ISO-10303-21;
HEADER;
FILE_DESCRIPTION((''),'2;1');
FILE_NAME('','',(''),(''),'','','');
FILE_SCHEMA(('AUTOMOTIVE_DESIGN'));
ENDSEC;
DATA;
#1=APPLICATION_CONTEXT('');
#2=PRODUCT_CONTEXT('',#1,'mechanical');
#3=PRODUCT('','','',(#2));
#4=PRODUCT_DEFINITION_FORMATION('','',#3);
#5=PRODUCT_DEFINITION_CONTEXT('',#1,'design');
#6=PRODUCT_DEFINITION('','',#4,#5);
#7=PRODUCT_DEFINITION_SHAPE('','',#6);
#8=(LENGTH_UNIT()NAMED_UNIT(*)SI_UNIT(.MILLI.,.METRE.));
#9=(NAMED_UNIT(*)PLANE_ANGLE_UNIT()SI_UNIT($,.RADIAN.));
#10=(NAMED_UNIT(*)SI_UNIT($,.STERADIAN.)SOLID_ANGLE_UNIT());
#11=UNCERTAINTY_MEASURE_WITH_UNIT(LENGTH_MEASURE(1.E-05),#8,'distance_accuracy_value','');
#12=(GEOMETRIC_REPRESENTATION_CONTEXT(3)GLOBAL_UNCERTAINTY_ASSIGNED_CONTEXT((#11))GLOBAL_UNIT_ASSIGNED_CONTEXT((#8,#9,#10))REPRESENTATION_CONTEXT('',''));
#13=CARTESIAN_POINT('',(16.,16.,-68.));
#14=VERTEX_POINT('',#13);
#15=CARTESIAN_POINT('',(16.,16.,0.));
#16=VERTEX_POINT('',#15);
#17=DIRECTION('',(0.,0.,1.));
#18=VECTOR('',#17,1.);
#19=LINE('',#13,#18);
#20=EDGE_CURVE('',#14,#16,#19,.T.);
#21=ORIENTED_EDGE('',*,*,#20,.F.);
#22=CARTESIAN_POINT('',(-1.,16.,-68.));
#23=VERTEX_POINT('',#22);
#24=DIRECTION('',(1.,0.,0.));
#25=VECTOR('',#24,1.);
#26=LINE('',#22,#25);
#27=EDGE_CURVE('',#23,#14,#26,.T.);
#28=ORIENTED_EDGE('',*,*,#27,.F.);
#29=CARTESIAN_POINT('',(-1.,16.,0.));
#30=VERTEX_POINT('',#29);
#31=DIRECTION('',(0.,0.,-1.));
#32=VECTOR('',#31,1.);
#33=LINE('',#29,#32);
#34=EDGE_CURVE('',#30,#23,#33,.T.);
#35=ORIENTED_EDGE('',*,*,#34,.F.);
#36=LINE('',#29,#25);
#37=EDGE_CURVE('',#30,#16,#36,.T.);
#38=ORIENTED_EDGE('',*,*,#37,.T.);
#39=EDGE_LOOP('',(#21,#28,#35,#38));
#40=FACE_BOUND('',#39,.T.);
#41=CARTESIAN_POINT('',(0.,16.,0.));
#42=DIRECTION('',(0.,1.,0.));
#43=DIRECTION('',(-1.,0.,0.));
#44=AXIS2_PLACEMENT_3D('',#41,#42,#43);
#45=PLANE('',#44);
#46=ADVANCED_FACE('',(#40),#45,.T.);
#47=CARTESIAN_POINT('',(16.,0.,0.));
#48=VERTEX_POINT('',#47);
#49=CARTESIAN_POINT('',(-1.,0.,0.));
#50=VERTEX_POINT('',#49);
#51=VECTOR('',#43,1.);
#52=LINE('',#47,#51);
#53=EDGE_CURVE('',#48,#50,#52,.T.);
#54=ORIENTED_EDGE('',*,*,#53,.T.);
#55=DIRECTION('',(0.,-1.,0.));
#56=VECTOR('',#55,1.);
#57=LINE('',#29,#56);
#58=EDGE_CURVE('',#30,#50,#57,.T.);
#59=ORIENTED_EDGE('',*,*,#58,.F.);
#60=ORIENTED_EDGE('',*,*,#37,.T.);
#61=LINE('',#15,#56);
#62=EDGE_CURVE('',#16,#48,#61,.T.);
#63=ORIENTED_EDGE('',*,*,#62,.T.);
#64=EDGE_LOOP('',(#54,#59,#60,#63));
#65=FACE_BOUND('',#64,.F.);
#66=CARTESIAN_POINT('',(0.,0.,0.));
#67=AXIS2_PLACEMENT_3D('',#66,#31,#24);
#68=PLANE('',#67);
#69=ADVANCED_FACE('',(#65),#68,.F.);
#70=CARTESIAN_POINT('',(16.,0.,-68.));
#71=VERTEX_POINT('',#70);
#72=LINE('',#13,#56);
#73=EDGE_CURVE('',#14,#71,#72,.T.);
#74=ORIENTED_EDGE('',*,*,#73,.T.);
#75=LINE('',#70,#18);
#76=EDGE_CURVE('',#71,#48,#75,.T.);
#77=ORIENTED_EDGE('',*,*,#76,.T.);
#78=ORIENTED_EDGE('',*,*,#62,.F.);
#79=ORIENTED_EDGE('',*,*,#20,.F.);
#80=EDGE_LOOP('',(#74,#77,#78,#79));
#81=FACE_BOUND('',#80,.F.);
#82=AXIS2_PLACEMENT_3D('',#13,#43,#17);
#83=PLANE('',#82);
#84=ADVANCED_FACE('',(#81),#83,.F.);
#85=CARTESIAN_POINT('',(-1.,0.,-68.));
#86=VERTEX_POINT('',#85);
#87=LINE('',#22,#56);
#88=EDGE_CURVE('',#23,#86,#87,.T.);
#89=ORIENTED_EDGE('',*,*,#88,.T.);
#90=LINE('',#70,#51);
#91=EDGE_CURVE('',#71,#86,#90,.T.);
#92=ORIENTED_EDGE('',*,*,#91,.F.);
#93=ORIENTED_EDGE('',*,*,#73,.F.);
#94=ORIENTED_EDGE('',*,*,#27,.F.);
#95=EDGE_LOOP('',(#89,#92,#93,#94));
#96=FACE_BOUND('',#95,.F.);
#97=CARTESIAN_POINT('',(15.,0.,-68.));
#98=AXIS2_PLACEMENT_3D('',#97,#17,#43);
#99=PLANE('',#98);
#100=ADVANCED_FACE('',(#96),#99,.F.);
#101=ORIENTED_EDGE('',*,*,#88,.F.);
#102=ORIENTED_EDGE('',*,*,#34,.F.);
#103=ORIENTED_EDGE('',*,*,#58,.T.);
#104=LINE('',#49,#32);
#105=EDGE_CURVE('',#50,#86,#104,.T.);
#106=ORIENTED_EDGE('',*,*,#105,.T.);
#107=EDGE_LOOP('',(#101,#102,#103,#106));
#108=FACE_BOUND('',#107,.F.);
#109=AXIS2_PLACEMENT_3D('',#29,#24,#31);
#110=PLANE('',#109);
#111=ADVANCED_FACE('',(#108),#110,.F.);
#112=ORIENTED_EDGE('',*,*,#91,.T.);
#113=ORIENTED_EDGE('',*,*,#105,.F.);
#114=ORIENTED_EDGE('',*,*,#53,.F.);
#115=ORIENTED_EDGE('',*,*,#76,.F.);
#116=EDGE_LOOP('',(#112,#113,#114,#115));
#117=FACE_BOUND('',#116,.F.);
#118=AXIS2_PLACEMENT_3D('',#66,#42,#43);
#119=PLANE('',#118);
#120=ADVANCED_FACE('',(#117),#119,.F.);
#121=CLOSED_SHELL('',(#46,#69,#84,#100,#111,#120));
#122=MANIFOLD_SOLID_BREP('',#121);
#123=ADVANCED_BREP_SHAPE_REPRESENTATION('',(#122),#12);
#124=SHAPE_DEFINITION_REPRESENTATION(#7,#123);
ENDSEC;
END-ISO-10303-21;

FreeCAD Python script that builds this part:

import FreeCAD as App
import Part
import Sketcher

V = App.Vector
Q = App.Units.Quantity


def add_polygon(sketch, points):
    """Adds a closed chain of lines whose ends are joined by coincident constraints."""
    first, n = sketch.GeometryCount, len(points)
    for a, b in zip(points, points[1:] + points[:1]):
        sketch.addGeometry(Part.LineSegment(App.Vector(*a, 0), App.Vector(*b, 0)), False)
    for i in range(n):
        sketch.addConstraint(Sketcher.Constraint("Coincident", first + i, 2, first + (i + 1) % n, 1))

doc = App.newDocument("Part")
params = doc.addObject("Spreadsheet::Sheet", "Params")
for row, (alias, value) in enumerate([
    ("sketch1_width", "15 mm"),
    ("sketch1_height", "68 mm"),
    ("pad1_length", "16 mm"),
    ("sketch2_width", "1 mm"),
    ("sketch2_height", "68 mm"),
    ("pad2_length", "16 mm"),
], start=1):
    params.set(f"A{row}", alias)
    params.set(f"B{row}", "=" + value)
    params.setAlias(f"B{row}", alias)

body = doc.addObject("PartDesign::Body", "Body")

# Sketch on XZ plane
sketch1 = body.newObject("Sketcher::SketchObject", "Sketch")
sketch1.AttachmentSupport = (doc.getObject("XZ_Plane"), [""])
sketch1.MapMode = "FlatFace"
add_polygon(sketch1, [(0, -68), (0, 0), (15, 0), (15, -68)])  # lines 0-3
sketch1.addConstraint(Sketcher.Constraint("Vertical", 0))
sketch1.addConstraint(Sketcher.Constraint("Horizontal", 1))
sketch1.addConstraint(Sketcher.Constraint("Vertical", 2))
sketch1.addConstraint(Sketcher.Constraint("Horizontal", 3))
sketch1.addConstraint(Sketcher.Constraint("Coincident", 0, 2, -1, 1))
sketch1.addConstraint(Sketcher.Constraint("DistanceX", 1, 1, 1, 2, Q("15 mm")))
sketch1.addConstraint(Sketcher.Constraint("DistanceY", 0, 1, 0, 2, Q("68 mm")))
sketch1.setExpression("Constraints[9]", "Params.sketch1_width")
sketch1.setExpression("Constraints[10]", "Params.sketch1_height")
pad1 = body.newObject("PartDesign::Pad", "Pad")
pad1.Profile = sketch1
pad1.setExpression("Length", "Params.pad1_length")
pad1.Reversed = True

# Sketch on XZ plane
sketch2 = body.newObject("Sketcher::SketchObject", "Sketch001")
sketch2.AttachmentSupport = (doc.getObject("XZ_Plane"), [""])
sketch2.MapMode = "FlatFace"
sketch2.AttachmentOffset = App.Placement(V(0, 0, -16), App.Rotation())
add_polygon(sketch2, [(15, -68), (15, 0), (16, 0), (16, -68)])  # lines 0-3
add_polygon(sketch2, [(-1, 0), (0, 0), (0, -68), (-1, -68)])  # lines 4-7
sketch2.addConstraint(Sketcher.Constraint("Vertical", 0))
sketch2.addConstraint(Sketcher.Constraint("Horizontal", 1))
sketch2.addConstraint(Sketcher.Constraint("Vertical", 2))
sketch2.addConstraint(Sketcher.Constraint("Horizontal", 3))
sketch2.addConstraint(Sketcher.Constraint("Horizontal", 4))
sketch2.addConstraint(Sketcher.Constraint("Vertical", 5))
sketch2.addConstraint(Sketcher.Constraint("Horizontal", 6))
sketch2.addConstraint(Sketcher.Constraint("Vertical", 7))
sketch2.addConstraint(Sketcher.Constraint("Coincident", 4, 2, -1, 1))
sketch2.addConstraint(Sketcher.Constraint("PointOnObject", 0, 2, -1))
sketch2.addConstraint(Sketcher.Constraint("Horizontal", 3, 2, 5, 2))
sketch2.addConstraint(Sketcher.Constraint("Equal", 3, 4))
sketch2.addConstraint(Sketcher.Constraint("DistanceX", 1, 1, 1, 2, Q("1 mm")))
sketch2.addConstraint(Sketcher.Constraint("DistanceY", 0, 1, 0, 2, Q("68 mm")))
sketch2.addConstraint(Sketcher.Constraint("DistanceX", -1, 1, 0, 2, Q("15 mm")))
sketch2.setExpression("Constraints[20]", "Params.sketch2_width")
sketch2.setExpression("Constraints[21]", "Params.sketch2_height")
pad2 = body.newObject("PartDesign::Pad", "Pad001")
pad2.Profile = sketch2
pad2.setExpression("Length", "Params.pad2_length")

doc.recompute()
